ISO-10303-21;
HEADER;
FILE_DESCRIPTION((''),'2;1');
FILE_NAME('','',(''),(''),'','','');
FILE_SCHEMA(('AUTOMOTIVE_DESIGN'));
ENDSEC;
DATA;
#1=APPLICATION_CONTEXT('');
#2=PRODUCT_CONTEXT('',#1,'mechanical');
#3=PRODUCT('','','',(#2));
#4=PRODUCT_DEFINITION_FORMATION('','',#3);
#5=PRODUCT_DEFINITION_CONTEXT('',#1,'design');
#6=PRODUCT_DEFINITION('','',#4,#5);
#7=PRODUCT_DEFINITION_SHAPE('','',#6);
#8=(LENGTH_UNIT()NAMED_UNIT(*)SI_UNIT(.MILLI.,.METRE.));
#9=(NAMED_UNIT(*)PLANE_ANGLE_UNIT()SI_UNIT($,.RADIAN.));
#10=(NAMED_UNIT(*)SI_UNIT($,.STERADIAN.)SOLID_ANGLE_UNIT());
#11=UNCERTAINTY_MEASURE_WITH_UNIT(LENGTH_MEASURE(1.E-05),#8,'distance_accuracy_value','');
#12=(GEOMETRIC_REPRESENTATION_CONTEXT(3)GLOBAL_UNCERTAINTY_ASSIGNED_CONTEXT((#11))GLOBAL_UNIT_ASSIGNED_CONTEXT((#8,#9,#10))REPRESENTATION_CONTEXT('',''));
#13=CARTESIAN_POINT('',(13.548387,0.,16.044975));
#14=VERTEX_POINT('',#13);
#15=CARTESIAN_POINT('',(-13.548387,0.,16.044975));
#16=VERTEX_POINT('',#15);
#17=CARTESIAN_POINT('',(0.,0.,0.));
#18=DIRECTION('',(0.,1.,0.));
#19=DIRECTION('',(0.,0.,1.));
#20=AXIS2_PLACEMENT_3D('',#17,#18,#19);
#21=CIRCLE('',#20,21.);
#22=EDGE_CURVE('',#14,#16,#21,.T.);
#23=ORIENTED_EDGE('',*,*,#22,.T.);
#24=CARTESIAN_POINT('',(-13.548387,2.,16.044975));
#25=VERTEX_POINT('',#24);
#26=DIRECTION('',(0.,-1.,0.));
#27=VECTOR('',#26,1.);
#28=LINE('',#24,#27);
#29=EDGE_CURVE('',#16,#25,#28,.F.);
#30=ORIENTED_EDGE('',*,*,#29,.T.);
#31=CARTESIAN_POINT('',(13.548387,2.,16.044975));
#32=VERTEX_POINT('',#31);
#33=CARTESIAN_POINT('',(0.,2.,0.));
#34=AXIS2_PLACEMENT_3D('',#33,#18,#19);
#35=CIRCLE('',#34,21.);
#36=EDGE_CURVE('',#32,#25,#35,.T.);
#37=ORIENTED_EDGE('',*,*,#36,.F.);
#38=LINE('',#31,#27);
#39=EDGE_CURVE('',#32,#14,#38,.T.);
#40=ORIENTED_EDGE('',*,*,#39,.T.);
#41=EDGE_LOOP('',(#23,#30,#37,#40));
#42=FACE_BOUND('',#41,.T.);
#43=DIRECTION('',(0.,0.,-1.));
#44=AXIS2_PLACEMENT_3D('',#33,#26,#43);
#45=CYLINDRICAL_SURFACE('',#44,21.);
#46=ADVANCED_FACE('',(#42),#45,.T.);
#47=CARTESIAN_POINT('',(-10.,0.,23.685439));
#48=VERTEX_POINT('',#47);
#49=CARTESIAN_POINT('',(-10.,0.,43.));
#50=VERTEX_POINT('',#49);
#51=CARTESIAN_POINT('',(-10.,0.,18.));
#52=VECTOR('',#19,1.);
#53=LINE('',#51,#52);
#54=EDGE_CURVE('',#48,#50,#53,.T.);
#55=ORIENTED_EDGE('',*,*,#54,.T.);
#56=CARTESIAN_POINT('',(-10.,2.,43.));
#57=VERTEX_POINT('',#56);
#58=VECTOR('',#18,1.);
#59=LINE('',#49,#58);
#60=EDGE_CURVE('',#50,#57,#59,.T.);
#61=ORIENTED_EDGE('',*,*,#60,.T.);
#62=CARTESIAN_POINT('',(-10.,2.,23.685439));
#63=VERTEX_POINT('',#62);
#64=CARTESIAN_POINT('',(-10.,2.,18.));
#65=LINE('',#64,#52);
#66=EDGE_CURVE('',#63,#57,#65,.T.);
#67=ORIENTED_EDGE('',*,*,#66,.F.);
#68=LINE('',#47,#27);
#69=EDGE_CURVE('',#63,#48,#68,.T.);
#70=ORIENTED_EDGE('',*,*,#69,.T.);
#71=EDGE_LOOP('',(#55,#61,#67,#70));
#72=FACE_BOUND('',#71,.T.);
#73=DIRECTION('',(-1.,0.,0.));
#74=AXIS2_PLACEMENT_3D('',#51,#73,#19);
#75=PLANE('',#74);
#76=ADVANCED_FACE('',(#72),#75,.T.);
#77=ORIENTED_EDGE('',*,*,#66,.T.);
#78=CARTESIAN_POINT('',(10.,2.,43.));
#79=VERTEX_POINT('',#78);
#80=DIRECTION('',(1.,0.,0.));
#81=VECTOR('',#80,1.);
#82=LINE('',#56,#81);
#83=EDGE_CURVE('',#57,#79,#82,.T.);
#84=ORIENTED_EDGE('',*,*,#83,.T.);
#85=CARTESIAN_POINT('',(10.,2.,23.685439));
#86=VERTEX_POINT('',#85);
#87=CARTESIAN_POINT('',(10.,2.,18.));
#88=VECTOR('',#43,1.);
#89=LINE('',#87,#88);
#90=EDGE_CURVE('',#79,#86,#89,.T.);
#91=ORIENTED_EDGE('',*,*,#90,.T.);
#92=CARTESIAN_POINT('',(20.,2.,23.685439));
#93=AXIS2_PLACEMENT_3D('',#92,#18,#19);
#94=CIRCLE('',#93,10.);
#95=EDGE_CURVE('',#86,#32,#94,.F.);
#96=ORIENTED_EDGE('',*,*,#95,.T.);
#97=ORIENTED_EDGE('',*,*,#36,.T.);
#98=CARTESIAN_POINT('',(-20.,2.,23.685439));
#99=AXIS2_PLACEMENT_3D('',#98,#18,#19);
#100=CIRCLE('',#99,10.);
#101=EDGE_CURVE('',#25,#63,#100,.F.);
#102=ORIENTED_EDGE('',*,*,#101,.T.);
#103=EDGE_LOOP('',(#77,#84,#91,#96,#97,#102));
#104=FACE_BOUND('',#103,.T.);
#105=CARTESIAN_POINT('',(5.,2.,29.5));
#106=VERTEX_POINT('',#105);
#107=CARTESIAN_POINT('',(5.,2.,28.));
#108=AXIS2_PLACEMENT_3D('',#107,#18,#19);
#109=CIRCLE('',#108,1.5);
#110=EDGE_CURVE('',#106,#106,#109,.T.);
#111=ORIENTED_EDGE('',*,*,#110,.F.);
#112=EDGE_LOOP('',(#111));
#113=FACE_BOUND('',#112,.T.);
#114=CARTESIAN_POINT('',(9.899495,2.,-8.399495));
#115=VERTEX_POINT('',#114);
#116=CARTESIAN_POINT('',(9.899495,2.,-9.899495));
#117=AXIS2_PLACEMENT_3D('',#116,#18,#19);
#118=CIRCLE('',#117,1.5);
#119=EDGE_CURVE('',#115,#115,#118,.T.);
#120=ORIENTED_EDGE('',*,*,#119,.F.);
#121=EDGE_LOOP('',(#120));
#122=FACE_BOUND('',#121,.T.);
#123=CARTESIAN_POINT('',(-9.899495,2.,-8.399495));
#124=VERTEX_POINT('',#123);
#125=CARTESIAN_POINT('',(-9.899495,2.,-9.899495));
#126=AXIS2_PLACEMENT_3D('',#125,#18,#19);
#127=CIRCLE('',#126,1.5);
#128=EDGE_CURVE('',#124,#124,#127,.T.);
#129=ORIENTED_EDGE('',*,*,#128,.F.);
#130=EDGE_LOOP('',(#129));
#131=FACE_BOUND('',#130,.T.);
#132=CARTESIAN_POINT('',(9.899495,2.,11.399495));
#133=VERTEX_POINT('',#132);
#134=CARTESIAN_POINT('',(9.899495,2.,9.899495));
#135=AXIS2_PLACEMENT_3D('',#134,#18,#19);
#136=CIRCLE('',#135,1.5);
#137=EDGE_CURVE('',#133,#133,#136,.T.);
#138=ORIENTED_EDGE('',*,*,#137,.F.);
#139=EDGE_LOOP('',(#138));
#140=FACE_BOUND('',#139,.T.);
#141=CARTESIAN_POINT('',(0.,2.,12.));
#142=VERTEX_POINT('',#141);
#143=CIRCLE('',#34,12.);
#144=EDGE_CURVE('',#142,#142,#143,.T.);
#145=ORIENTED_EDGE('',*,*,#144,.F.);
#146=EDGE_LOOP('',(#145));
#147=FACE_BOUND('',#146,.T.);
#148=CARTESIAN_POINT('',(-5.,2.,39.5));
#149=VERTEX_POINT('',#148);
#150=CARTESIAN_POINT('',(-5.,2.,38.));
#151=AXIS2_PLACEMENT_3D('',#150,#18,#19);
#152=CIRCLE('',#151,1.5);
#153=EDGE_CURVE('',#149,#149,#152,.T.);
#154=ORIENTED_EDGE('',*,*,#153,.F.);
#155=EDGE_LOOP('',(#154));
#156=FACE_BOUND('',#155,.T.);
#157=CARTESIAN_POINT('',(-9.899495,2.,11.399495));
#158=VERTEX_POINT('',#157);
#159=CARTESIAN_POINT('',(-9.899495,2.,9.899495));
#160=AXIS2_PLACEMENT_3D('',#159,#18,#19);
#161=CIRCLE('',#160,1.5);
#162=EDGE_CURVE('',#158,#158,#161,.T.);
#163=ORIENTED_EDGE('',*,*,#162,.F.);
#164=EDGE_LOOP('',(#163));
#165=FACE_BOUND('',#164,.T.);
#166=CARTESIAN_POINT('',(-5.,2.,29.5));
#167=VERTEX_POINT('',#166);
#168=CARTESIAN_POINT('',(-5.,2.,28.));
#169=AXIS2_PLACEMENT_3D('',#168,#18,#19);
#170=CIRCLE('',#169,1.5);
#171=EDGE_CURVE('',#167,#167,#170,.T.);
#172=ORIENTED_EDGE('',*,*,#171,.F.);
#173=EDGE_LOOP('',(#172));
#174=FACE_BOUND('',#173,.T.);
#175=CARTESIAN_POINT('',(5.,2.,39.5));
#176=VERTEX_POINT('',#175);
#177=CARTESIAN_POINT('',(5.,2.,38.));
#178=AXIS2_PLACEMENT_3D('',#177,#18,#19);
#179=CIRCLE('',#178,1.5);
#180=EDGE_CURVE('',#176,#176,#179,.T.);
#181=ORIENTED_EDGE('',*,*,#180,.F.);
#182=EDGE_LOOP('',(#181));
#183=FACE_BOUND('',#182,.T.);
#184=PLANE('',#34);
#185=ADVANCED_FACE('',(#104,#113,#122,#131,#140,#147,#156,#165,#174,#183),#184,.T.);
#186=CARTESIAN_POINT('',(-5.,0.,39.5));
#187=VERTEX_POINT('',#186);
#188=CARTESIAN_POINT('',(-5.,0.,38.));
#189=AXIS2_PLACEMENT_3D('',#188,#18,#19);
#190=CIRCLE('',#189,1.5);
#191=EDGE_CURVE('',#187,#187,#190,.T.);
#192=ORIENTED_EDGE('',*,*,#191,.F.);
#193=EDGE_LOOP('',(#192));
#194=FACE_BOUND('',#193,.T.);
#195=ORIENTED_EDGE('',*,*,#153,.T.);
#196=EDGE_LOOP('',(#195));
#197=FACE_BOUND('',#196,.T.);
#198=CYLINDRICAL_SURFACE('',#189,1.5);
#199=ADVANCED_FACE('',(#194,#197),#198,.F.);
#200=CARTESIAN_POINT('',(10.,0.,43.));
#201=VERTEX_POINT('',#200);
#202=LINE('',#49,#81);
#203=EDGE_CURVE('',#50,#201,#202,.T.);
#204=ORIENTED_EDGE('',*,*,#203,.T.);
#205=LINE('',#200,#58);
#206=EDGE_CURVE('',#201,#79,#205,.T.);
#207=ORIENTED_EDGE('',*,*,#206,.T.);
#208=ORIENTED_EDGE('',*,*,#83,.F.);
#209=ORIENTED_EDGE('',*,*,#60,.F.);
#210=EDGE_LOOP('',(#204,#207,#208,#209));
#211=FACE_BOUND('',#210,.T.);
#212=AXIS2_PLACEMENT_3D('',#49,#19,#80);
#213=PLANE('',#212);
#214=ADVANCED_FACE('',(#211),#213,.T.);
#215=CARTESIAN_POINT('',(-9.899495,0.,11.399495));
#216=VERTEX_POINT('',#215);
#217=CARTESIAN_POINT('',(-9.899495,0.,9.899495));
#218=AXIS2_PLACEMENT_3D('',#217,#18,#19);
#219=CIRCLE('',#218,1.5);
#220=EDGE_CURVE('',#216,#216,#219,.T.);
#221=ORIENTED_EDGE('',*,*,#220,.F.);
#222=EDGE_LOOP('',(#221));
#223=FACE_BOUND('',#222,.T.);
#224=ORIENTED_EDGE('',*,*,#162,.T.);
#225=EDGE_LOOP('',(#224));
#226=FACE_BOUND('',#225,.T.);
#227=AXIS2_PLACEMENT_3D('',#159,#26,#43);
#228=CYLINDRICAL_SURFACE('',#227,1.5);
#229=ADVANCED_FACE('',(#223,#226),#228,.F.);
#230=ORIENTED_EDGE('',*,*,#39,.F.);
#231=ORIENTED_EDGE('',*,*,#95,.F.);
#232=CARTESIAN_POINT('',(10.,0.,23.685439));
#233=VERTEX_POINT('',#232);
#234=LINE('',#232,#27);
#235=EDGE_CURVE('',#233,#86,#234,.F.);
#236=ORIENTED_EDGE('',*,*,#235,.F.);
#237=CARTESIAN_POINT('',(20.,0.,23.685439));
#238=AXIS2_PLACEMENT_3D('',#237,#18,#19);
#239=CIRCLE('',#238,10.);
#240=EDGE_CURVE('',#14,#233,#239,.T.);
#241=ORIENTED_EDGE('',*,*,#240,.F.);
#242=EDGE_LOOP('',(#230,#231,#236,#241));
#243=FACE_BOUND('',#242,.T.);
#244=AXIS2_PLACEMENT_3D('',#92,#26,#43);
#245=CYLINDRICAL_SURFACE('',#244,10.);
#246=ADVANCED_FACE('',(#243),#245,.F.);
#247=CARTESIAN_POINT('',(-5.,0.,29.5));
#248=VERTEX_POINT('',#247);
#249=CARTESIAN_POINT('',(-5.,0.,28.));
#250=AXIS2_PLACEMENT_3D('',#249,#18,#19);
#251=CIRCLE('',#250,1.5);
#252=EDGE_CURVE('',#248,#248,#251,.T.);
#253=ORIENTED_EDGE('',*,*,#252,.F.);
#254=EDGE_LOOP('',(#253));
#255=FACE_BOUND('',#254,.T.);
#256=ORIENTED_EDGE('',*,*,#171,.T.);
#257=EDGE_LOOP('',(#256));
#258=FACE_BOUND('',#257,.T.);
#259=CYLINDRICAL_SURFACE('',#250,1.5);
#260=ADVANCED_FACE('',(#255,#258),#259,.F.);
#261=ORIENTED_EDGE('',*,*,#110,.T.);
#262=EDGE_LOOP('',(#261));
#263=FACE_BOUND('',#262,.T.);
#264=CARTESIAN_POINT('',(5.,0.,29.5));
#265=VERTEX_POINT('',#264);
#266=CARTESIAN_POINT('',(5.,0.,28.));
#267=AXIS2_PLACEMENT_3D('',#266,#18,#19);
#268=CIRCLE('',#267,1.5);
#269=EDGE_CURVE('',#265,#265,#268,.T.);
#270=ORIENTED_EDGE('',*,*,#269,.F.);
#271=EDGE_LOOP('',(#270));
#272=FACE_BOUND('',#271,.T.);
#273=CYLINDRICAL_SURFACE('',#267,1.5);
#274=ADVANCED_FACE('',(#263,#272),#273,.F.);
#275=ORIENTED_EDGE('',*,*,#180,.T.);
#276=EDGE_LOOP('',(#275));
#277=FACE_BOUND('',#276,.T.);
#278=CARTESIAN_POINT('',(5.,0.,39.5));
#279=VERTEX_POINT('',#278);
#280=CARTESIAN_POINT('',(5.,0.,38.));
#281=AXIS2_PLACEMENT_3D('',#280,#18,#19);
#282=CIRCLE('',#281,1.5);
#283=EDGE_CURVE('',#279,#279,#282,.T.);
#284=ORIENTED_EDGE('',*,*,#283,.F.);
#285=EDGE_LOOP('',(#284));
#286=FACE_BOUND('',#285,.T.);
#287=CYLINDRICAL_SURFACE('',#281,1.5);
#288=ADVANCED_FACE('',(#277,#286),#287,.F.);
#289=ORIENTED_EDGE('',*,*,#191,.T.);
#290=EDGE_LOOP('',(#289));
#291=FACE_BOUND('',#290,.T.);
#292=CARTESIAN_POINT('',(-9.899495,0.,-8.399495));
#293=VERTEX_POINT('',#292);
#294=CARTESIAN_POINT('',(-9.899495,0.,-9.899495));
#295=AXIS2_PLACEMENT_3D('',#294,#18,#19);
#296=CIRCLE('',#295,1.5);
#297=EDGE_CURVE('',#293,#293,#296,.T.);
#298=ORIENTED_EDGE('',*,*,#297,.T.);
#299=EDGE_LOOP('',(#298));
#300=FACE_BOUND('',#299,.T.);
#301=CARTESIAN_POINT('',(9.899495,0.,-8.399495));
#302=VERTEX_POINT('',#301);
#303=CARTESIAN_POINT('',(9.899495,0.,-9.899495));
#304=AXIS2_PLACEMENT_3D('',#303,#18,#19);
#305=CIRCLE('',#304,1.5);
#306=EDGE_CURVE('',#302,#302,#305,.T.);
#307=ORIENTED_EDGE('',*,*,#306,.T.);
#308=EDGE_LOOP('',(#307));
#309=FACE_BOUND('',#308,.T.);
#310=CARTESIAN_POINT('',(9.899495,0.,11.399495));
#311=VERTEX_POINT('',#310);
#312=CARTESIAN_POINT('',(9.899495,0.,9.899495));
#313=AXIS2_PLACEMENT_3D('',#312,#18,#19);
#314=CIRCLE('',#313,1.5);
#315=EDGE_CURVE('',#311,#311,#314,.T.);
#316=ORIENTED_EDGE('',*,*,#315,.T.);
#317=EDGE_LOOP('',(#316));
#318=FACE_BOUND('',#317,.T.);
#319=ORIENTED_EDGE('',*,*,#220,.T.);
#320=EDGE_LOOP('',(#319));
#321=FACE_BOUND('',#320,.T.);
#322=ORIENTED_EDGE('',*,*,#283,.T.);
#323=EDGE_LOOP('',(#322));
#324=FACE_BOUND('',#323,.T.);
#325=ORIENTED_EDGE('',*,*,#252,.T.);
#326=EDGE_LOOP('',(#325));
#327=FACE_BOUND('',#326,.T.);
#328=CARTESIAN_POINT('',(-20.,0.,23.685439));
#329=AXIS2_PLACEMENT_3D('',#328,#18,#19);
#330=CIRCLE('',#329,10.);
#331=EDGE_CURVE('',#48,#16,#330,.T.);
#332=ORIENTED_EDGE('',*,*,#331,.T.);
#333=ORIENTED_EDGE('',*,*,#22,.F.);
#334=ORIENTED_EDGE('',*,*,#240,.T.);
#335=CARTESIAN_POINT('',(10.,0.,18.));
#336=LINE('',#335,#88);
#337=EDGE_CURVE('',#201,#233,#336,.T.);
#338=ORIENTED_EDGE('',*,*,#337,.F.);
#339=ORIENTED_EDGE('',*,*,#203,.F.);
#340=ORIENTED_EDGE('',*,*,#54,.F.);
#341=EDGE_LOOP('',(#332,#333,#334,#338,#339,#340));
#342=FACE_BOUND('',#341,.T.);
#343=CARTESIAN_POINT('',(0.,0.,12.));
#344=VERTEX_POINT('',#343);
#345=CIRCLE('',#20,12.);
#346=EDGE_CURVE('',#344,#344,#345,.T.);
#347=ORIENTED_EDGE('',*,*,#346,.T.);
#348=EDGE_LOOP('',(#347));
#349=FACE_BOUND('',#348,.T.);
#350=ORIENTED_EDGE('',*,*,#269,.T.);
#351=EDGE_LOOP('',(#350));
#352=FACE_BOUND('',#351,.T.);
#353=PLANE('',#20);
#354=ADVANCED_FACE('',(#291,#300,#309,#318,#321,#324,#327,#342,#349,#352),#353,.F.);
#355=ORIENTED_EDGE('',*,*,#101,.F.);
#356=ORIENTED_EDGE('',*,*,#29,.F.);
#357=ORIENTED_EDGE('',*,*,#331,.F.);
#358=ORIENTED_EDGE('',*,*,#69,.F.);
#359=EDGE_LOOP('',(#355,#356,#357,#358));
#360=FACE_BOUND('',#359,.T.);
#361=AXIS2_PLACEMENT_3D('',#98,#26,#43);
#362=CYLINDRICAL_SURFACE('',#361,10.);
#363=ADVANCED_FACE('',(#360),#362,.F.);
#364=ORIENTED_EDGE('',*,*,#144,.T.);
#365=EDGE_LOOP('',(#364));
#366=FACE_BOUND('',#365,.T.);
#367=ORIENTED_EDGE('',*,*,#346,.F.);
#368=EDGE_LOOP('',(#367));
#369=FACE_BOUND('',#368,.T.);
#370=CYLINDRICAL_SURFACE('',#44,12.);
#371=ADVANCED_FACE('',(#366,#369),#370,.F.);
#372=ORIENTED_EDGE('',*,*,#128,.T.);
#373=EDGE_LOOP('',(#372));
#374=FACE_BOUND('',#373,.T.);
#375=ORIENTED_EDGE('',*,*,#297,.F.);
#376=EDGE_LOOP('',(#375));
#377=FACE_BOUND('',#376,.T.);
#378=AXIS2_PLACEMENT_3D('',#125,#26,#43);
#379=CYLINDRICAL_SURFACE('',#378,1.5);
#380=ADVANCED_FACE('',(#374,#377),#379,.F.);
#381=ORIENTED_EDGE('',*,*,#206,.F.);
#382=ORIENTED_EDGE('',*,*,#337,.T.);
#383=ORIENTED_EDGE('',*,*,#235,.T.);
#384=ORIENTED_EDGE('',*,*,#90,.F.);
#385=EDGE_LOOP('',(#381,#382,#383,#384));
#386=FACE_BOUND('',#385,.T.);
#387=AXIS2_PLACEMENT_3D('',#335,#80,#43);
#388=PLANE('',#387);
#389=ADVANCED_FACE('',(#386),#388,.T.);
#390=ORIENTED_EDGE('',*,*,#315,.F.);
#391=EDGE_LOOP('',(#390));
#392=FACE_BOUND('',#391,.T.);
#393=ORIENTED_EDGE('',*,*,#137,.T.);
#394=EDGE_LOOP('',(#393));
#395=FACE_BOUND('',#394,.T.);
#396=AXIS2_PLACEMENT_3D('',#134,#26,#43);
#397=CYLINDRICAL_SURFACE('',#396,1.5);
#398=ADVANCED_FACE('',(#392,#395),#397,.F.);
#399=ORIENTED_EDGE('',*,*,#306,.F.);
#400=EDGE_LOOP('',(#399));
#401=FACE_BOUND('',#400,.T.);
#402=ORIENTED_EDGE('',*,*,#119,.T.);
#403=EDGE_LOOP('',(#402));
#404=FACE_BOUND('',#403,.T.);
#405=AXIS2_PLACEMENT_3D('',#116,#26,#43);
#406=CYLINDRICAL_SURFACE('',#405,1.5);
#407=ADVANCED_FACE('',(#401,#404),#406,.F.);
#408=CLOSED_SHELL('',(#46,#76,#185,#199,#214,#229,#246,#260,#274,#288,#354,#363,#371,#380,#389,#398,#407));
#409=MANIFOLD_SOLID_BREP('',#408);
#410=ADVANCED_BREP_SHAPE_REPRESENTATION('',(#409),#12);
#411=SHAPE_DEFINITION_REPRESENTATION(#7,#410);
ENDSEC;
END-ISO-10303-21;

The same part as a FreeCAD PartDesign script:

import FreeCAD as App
import Part
import Sketcher
Q = App.Units.Quantity


def edges_at(feature, points):
    """Names of the edges that pass closest to the given points."""
    edges = feature.Shape.Edges
    near = lambda p: min(range(len(edges)), key=lambda i: edges[i].distToShape(Part.Vertex(*p))[0])
    return sorted({f"Edge{near(p) + 1}" for p in points})

doc = App.newDocument("Part")
body = doc.addObject("PartDesign::Body", "Body")

# Sketch on XZ plane
sketch1 = body.newObject("Sketcher::SketchObject", "Sketch")
sketch1.AttachmentSupport = (doc.getObject("XZ_Plane"), [""])
sketch1.MapMode = "FlatFace"
sketch1.addGeometry([
    Part.Circle(App.Vector(0, 0, 0), App.Vector(0, 0, 1), 21),  # 0
    Part.Circle(App.Vector(-9.899495, -9.899495, 0), App.Vector(0, 0, 1), 1.5),  # 1
    Part.Circle(App.Vector(-9.899495, 9.899495, 0), App.Vector(0, 0, 1), 1.5),  # 2
    Part.Circle(App.Vector(9.899495, -9.899495, 0), App.Vector(0, 0, 1), 1.5),  # 3
    Part.Circle(App.Vector(0, 0, 0), App.Vector(0, 0, 1), 12),  # 4
    Part.Circle(App.Vector(9.899495, 9.899495, 0), App.Vector(0, 0, 1), 1.5),  # 5
], False)
sketch1.addConstraint([
    Sketcher.Constraint("Coincident", 0, 3, -1, 1),
    Sketcher.Constraint("Coincident", 4, 3, -1, 1),
    Sketcher.Constraint("Equal", 1, 2),
    Sketcher.Constraint("Equal", 2, 3),
    Sketcher.Constraint("Equal", 3, 5),
    Sketcher.Constraint("Symmetric", 2, 3, 3, 3, -1, 1),
    Sketcher.Constraint("Symmetric", 1, 3, 5, 3, -1, 1),
    Sketcher.Constraint("Symmetric", 1, 3, 3, 3, -2),
    Sketcher.Constraint("Diameter", 0, Q("42 mm")),
    Sketcher.Constraint("Diameter", 1, Q("3 mm")),
    Sketcher.Constraint("Diameter", 4, Q("24 mm")),
    Sketcher.Constraint("DistanceY", 1, 3, 2, 3, Q("19.79899 mm")),
    Sketcher.Constraint("DistanceX", 1, 3, 3, 3, Q("19.79899 mm")),
])
pad1 = body.newObject("PartDesign::Pad", "Pad")
pad1.Profile = sketch1
pad1.Length = 2
pad1.Reversed = True

# Sketch on XZ plane
sketch2 = body.newObject("Sketcher::SketchObject", "Sketch001")
sketch2.AttachmentSupport = (doc.getObject("XZ_Plane"), [""])
sketch2.MapMode = "FlatFace"
sketch2.AttachmentOffset = App.Placement(App.Vector(0, 0, -2), App.Rotation())
sketch2.addGeometry([
    Part.LineSegment(App.Vector(-10, 18, 0), App.Vector(-10, 43, 0)),  # 0
    Part.LineSegment(App.Vector(-10, 43, 0), App.Vector(10, 43, 0)),  # 1
    Part.LineSegment(App.Vector(10, 43, 0), App.Vector(10, 18, 0)),  # 2
    Part.LineSegment(App.Vector(10, 18, 0), App.Vector(-10, 18, 0)),  # 3
    Part.Circle(App.Vector(-5, 38, 0), App.Vector(0, 0, 1), 1.5),  # 4
    Part.Circle(App.Vector(5, 38, 0), App.Vector(0, 0, 1), 1.5),  # 5
    Part.Circle(App.Vector(-5, 28, 0), App.Vector(0, 0, 1), 1.5),  # 6
    Part.Circle(App.Vector(5, 28, 0), App.Vector(0, 0, 1), 1.5),  # 7
], False)
sketch2.addConstraint([
    Sketcher.Constraint("Coincident", 0, 2, 1, 1),
    Sketcher.Constraint("Coincident", 1, 2, 2, 1),
    Sketcher.Constraint("Coincident", 2, 2, 3, 1),
    Sketcher.Constraint("Coincident", 3, 2, 0, 1),
    Sketcher.Constraint("Vertical", 0),
    Sketcher.Constraint("Horizontal", 1),
    Sketcher.Constraint("Vertical", 2),
    Sketcher.Constraint("Horizontal", 3),
    Sketcher.Constraint("Equal", 4, 5),
    Sketcher.Constraint("Equal", 5, 6),
    Sketcher.Constraint("Equal", 6, 7),
    Sketcher.Constraint("Symmetric", 4, 3, 5, 3, -2),
    Sketcher.Constraint("Symmetric", 6, 3, 7, 3, -2),
    Sketcher.Constraint("Vertical", 4, 3, 6, 3),
    Sketcher.Constraint("Diameter", 4, Q("3 mm")),
    Sketcher.Constraint("DistanceX", 1, 1, 1, 2, Q("20 mm")),
    Sketcher.Constraint("DistanceY", 0, 1, 0, 2, Q("25 mm")),
    Sketcher.Constraint("DistanceX", 4, 3, -1, 1, Q("5 mm")),
    Sketcher.Constraint("DistanceY", -1, 1, 4, 3, Q("38 mm")),
    Sketcher.Constraint("DistanceY", -1, 1, 6, 3, Q("28 mm")),
    Sketcher.Constraint("DistanceX", 0, 2, -1, 1, Q("10 mm")),
    Sketcher.Constraint("DistanceY", -1, 1, 0, 2, Q("43 mm")),
])
pad2 = body.newObject("PartDesign::Pad", "Pad001")
pad2.Profile = sketch2
pad2.Length = 2
doc.recompute()

fillet = body.newObject("PartDesign::Fillet", "Fillet")
fillet.Base = (pad2, edges_at(pad2, [(-10, 1, 18.466), (10, 1, 18.466)]))
fillet.Radius = 10

doc.recompute()
